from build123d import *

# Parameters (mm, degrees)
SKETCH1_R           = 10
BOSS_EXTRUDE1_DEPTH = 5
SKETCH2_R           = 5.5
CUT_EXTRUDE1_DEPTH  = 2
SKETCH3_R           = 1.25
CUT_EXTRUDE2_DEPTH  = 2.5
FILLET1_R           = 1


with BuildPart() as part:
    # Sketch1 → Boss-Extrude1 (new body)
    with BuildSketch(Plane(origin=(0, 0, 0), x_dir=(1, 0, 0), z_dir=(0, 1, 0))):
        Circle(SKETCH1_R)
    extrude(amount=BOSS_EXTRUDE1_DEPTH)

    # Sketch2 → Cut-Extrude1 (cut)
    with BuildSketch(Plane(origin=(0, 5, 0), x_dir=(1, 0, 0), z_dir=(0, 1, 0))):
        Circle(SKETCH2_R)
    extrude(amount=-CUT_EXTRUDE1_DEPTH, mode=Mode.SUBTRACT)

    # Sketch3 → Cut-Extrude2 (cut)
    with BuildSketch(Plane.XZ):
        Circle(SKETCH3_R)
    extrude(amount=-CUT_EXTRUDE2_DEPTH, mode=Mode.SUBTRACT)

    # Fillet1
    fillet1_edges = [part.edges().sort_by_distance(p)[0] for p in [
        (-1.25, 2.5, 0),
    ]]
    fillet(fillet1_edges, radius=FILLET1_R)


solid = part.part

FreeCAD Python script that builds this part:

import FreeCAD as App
import Part
import Sketcher
from FreeCAD import Vector


def edges_at(feature, points):
    """Names of the edges that pass closest to the given points."""
    edges = feature.Shape.Edges
    near = lambda p: min(range(len(edges)), key=lambda i: edges[i].distToShape(Part.Vertex(*p))[0])
    return sorted({f"Edge{near(p) + 1}" for p in points})

doc = App.newDocument("Part")
params = doc.addObject("Spreadsheet::Sheet", "Params")
for row, (alias, value) in enumerate([
    ("sketch1_diameter", "20 mm"),
    ("pad1_length", "5 mm"),
    ("sketch2_diameter", "11 mm"),
    ("pocket1_length", "2 mm"),
    ("sketch3_diameter", "2.5 mm"),
    ("pocket2_length", "2.5 mm"),
    ("fillet_radius", "1 mm"),
], start=1):
    params.set(f"A{row}", alias)
    params.set(f"B{row}", "=" + value)
    params.setAlias(f"B{row}", alias)

body = doc.addObject("PartDesign::Body", "Body")

# Sketch on XZ plane
sketch1 = doc.addObject("Sketcher::SketchObject", "Sketch")
body.addObject(sketch1)
sketch1.AttachmentSupport = (doc.XZ_Plane, [""])
sketch1.MapMode = "FlatFace"
sketch1.addGeometry(Part.Circle(Vector(0, 0, 0), Vector(0, 0, 1), 10), False)
sketch1.addConstraint([
    Sketcher.Constraint("Coincident", 0, 3, -1, 1),
    Sketcher.Constraint("Diameter", 0, 20.0),
])
sketch1.setExpression("Constraints[1]", "Params.sketch1_diameter")
pad1 = doc.addObject("PartDesign::Pad", "Pad")
body.addObject(pad1)
pad1.Profile = sketch1
pad1.setExpression("Length", "Params.pad1_length")
pad1.Reversed = True

# Sketch on XZ plane
sketch2 = doc.addObject("Sketcher::SketchObject", "Sketch001")
body.addObject(sketch2)
sketch2.AttachmentSupport = (doc.XZ_Plane, [""])
sketch2.MapMode = "FlatFace"
sketch2.AttachmentOffset = App.Placement(Vector(0, 0, -5), App.Rotation())
sketch2.addGeometry(Part.Circle(Vector(0, 0, 0), Vector(0, 0, 1), 6), False)
sketch2.addConstraint([
    Sketcher.Constraint("Coincident", 0, 3, -1, 1),
    Sketcher.Constraint("Diameter", 0, 11.0),
])
sketch2.setExpression("Constraints[1]", "Params.sketch2_diameter")
pocket1 = doc.addObject("PartDesign::Pocket", "Pocket")
body.addObject(pocket1)
pocket1.Profile = sketch2
pocket1.setExpression("Length", "Params.pocket1_length")
pocket1.Reversed = True

# Sketch on XZ plane
sketch3 = doc.addObject("Sketcher::SketchObject", "Sketch002")
body.addObject(sketch3)
sketch3.AttachmentSupport = (doc.XZ_Plane, [""])
sketch3.MapMode = "FlatFace"
sketch3.addGeometry(Part.Circle(Vector(0, 0, 0), Vector(0, 0, 1), 1.2), False)
sketch3.addConstraint([
    Sketcher.Constraint("Coincident", 0, 3, -1, 1),
    Sketcher.Constraint("Diameter", 0, 2.5),
])
sketch3.setExpression("Constraints[1]", "Params.sketch3_diameter")
pocket2 = doc.addObject("PartDesign::Pocket", "Pocket001")
body.addObject(pocket2)
pocket2.Profile = sketch3
pocket2.setExpression("Length", "Params.pocket2_length")
doc.recompute()

fillet = doc.addObject("PartDesign::Fillet", "Fillet")
body.addObject(fillet)
fillet.Base = (pocket2, edges_at(pocket2, [(-1.25, 2.5, 0)]))
fillet.setExpression("Radius", "Params.fillet_radius")

doc.recompute()
